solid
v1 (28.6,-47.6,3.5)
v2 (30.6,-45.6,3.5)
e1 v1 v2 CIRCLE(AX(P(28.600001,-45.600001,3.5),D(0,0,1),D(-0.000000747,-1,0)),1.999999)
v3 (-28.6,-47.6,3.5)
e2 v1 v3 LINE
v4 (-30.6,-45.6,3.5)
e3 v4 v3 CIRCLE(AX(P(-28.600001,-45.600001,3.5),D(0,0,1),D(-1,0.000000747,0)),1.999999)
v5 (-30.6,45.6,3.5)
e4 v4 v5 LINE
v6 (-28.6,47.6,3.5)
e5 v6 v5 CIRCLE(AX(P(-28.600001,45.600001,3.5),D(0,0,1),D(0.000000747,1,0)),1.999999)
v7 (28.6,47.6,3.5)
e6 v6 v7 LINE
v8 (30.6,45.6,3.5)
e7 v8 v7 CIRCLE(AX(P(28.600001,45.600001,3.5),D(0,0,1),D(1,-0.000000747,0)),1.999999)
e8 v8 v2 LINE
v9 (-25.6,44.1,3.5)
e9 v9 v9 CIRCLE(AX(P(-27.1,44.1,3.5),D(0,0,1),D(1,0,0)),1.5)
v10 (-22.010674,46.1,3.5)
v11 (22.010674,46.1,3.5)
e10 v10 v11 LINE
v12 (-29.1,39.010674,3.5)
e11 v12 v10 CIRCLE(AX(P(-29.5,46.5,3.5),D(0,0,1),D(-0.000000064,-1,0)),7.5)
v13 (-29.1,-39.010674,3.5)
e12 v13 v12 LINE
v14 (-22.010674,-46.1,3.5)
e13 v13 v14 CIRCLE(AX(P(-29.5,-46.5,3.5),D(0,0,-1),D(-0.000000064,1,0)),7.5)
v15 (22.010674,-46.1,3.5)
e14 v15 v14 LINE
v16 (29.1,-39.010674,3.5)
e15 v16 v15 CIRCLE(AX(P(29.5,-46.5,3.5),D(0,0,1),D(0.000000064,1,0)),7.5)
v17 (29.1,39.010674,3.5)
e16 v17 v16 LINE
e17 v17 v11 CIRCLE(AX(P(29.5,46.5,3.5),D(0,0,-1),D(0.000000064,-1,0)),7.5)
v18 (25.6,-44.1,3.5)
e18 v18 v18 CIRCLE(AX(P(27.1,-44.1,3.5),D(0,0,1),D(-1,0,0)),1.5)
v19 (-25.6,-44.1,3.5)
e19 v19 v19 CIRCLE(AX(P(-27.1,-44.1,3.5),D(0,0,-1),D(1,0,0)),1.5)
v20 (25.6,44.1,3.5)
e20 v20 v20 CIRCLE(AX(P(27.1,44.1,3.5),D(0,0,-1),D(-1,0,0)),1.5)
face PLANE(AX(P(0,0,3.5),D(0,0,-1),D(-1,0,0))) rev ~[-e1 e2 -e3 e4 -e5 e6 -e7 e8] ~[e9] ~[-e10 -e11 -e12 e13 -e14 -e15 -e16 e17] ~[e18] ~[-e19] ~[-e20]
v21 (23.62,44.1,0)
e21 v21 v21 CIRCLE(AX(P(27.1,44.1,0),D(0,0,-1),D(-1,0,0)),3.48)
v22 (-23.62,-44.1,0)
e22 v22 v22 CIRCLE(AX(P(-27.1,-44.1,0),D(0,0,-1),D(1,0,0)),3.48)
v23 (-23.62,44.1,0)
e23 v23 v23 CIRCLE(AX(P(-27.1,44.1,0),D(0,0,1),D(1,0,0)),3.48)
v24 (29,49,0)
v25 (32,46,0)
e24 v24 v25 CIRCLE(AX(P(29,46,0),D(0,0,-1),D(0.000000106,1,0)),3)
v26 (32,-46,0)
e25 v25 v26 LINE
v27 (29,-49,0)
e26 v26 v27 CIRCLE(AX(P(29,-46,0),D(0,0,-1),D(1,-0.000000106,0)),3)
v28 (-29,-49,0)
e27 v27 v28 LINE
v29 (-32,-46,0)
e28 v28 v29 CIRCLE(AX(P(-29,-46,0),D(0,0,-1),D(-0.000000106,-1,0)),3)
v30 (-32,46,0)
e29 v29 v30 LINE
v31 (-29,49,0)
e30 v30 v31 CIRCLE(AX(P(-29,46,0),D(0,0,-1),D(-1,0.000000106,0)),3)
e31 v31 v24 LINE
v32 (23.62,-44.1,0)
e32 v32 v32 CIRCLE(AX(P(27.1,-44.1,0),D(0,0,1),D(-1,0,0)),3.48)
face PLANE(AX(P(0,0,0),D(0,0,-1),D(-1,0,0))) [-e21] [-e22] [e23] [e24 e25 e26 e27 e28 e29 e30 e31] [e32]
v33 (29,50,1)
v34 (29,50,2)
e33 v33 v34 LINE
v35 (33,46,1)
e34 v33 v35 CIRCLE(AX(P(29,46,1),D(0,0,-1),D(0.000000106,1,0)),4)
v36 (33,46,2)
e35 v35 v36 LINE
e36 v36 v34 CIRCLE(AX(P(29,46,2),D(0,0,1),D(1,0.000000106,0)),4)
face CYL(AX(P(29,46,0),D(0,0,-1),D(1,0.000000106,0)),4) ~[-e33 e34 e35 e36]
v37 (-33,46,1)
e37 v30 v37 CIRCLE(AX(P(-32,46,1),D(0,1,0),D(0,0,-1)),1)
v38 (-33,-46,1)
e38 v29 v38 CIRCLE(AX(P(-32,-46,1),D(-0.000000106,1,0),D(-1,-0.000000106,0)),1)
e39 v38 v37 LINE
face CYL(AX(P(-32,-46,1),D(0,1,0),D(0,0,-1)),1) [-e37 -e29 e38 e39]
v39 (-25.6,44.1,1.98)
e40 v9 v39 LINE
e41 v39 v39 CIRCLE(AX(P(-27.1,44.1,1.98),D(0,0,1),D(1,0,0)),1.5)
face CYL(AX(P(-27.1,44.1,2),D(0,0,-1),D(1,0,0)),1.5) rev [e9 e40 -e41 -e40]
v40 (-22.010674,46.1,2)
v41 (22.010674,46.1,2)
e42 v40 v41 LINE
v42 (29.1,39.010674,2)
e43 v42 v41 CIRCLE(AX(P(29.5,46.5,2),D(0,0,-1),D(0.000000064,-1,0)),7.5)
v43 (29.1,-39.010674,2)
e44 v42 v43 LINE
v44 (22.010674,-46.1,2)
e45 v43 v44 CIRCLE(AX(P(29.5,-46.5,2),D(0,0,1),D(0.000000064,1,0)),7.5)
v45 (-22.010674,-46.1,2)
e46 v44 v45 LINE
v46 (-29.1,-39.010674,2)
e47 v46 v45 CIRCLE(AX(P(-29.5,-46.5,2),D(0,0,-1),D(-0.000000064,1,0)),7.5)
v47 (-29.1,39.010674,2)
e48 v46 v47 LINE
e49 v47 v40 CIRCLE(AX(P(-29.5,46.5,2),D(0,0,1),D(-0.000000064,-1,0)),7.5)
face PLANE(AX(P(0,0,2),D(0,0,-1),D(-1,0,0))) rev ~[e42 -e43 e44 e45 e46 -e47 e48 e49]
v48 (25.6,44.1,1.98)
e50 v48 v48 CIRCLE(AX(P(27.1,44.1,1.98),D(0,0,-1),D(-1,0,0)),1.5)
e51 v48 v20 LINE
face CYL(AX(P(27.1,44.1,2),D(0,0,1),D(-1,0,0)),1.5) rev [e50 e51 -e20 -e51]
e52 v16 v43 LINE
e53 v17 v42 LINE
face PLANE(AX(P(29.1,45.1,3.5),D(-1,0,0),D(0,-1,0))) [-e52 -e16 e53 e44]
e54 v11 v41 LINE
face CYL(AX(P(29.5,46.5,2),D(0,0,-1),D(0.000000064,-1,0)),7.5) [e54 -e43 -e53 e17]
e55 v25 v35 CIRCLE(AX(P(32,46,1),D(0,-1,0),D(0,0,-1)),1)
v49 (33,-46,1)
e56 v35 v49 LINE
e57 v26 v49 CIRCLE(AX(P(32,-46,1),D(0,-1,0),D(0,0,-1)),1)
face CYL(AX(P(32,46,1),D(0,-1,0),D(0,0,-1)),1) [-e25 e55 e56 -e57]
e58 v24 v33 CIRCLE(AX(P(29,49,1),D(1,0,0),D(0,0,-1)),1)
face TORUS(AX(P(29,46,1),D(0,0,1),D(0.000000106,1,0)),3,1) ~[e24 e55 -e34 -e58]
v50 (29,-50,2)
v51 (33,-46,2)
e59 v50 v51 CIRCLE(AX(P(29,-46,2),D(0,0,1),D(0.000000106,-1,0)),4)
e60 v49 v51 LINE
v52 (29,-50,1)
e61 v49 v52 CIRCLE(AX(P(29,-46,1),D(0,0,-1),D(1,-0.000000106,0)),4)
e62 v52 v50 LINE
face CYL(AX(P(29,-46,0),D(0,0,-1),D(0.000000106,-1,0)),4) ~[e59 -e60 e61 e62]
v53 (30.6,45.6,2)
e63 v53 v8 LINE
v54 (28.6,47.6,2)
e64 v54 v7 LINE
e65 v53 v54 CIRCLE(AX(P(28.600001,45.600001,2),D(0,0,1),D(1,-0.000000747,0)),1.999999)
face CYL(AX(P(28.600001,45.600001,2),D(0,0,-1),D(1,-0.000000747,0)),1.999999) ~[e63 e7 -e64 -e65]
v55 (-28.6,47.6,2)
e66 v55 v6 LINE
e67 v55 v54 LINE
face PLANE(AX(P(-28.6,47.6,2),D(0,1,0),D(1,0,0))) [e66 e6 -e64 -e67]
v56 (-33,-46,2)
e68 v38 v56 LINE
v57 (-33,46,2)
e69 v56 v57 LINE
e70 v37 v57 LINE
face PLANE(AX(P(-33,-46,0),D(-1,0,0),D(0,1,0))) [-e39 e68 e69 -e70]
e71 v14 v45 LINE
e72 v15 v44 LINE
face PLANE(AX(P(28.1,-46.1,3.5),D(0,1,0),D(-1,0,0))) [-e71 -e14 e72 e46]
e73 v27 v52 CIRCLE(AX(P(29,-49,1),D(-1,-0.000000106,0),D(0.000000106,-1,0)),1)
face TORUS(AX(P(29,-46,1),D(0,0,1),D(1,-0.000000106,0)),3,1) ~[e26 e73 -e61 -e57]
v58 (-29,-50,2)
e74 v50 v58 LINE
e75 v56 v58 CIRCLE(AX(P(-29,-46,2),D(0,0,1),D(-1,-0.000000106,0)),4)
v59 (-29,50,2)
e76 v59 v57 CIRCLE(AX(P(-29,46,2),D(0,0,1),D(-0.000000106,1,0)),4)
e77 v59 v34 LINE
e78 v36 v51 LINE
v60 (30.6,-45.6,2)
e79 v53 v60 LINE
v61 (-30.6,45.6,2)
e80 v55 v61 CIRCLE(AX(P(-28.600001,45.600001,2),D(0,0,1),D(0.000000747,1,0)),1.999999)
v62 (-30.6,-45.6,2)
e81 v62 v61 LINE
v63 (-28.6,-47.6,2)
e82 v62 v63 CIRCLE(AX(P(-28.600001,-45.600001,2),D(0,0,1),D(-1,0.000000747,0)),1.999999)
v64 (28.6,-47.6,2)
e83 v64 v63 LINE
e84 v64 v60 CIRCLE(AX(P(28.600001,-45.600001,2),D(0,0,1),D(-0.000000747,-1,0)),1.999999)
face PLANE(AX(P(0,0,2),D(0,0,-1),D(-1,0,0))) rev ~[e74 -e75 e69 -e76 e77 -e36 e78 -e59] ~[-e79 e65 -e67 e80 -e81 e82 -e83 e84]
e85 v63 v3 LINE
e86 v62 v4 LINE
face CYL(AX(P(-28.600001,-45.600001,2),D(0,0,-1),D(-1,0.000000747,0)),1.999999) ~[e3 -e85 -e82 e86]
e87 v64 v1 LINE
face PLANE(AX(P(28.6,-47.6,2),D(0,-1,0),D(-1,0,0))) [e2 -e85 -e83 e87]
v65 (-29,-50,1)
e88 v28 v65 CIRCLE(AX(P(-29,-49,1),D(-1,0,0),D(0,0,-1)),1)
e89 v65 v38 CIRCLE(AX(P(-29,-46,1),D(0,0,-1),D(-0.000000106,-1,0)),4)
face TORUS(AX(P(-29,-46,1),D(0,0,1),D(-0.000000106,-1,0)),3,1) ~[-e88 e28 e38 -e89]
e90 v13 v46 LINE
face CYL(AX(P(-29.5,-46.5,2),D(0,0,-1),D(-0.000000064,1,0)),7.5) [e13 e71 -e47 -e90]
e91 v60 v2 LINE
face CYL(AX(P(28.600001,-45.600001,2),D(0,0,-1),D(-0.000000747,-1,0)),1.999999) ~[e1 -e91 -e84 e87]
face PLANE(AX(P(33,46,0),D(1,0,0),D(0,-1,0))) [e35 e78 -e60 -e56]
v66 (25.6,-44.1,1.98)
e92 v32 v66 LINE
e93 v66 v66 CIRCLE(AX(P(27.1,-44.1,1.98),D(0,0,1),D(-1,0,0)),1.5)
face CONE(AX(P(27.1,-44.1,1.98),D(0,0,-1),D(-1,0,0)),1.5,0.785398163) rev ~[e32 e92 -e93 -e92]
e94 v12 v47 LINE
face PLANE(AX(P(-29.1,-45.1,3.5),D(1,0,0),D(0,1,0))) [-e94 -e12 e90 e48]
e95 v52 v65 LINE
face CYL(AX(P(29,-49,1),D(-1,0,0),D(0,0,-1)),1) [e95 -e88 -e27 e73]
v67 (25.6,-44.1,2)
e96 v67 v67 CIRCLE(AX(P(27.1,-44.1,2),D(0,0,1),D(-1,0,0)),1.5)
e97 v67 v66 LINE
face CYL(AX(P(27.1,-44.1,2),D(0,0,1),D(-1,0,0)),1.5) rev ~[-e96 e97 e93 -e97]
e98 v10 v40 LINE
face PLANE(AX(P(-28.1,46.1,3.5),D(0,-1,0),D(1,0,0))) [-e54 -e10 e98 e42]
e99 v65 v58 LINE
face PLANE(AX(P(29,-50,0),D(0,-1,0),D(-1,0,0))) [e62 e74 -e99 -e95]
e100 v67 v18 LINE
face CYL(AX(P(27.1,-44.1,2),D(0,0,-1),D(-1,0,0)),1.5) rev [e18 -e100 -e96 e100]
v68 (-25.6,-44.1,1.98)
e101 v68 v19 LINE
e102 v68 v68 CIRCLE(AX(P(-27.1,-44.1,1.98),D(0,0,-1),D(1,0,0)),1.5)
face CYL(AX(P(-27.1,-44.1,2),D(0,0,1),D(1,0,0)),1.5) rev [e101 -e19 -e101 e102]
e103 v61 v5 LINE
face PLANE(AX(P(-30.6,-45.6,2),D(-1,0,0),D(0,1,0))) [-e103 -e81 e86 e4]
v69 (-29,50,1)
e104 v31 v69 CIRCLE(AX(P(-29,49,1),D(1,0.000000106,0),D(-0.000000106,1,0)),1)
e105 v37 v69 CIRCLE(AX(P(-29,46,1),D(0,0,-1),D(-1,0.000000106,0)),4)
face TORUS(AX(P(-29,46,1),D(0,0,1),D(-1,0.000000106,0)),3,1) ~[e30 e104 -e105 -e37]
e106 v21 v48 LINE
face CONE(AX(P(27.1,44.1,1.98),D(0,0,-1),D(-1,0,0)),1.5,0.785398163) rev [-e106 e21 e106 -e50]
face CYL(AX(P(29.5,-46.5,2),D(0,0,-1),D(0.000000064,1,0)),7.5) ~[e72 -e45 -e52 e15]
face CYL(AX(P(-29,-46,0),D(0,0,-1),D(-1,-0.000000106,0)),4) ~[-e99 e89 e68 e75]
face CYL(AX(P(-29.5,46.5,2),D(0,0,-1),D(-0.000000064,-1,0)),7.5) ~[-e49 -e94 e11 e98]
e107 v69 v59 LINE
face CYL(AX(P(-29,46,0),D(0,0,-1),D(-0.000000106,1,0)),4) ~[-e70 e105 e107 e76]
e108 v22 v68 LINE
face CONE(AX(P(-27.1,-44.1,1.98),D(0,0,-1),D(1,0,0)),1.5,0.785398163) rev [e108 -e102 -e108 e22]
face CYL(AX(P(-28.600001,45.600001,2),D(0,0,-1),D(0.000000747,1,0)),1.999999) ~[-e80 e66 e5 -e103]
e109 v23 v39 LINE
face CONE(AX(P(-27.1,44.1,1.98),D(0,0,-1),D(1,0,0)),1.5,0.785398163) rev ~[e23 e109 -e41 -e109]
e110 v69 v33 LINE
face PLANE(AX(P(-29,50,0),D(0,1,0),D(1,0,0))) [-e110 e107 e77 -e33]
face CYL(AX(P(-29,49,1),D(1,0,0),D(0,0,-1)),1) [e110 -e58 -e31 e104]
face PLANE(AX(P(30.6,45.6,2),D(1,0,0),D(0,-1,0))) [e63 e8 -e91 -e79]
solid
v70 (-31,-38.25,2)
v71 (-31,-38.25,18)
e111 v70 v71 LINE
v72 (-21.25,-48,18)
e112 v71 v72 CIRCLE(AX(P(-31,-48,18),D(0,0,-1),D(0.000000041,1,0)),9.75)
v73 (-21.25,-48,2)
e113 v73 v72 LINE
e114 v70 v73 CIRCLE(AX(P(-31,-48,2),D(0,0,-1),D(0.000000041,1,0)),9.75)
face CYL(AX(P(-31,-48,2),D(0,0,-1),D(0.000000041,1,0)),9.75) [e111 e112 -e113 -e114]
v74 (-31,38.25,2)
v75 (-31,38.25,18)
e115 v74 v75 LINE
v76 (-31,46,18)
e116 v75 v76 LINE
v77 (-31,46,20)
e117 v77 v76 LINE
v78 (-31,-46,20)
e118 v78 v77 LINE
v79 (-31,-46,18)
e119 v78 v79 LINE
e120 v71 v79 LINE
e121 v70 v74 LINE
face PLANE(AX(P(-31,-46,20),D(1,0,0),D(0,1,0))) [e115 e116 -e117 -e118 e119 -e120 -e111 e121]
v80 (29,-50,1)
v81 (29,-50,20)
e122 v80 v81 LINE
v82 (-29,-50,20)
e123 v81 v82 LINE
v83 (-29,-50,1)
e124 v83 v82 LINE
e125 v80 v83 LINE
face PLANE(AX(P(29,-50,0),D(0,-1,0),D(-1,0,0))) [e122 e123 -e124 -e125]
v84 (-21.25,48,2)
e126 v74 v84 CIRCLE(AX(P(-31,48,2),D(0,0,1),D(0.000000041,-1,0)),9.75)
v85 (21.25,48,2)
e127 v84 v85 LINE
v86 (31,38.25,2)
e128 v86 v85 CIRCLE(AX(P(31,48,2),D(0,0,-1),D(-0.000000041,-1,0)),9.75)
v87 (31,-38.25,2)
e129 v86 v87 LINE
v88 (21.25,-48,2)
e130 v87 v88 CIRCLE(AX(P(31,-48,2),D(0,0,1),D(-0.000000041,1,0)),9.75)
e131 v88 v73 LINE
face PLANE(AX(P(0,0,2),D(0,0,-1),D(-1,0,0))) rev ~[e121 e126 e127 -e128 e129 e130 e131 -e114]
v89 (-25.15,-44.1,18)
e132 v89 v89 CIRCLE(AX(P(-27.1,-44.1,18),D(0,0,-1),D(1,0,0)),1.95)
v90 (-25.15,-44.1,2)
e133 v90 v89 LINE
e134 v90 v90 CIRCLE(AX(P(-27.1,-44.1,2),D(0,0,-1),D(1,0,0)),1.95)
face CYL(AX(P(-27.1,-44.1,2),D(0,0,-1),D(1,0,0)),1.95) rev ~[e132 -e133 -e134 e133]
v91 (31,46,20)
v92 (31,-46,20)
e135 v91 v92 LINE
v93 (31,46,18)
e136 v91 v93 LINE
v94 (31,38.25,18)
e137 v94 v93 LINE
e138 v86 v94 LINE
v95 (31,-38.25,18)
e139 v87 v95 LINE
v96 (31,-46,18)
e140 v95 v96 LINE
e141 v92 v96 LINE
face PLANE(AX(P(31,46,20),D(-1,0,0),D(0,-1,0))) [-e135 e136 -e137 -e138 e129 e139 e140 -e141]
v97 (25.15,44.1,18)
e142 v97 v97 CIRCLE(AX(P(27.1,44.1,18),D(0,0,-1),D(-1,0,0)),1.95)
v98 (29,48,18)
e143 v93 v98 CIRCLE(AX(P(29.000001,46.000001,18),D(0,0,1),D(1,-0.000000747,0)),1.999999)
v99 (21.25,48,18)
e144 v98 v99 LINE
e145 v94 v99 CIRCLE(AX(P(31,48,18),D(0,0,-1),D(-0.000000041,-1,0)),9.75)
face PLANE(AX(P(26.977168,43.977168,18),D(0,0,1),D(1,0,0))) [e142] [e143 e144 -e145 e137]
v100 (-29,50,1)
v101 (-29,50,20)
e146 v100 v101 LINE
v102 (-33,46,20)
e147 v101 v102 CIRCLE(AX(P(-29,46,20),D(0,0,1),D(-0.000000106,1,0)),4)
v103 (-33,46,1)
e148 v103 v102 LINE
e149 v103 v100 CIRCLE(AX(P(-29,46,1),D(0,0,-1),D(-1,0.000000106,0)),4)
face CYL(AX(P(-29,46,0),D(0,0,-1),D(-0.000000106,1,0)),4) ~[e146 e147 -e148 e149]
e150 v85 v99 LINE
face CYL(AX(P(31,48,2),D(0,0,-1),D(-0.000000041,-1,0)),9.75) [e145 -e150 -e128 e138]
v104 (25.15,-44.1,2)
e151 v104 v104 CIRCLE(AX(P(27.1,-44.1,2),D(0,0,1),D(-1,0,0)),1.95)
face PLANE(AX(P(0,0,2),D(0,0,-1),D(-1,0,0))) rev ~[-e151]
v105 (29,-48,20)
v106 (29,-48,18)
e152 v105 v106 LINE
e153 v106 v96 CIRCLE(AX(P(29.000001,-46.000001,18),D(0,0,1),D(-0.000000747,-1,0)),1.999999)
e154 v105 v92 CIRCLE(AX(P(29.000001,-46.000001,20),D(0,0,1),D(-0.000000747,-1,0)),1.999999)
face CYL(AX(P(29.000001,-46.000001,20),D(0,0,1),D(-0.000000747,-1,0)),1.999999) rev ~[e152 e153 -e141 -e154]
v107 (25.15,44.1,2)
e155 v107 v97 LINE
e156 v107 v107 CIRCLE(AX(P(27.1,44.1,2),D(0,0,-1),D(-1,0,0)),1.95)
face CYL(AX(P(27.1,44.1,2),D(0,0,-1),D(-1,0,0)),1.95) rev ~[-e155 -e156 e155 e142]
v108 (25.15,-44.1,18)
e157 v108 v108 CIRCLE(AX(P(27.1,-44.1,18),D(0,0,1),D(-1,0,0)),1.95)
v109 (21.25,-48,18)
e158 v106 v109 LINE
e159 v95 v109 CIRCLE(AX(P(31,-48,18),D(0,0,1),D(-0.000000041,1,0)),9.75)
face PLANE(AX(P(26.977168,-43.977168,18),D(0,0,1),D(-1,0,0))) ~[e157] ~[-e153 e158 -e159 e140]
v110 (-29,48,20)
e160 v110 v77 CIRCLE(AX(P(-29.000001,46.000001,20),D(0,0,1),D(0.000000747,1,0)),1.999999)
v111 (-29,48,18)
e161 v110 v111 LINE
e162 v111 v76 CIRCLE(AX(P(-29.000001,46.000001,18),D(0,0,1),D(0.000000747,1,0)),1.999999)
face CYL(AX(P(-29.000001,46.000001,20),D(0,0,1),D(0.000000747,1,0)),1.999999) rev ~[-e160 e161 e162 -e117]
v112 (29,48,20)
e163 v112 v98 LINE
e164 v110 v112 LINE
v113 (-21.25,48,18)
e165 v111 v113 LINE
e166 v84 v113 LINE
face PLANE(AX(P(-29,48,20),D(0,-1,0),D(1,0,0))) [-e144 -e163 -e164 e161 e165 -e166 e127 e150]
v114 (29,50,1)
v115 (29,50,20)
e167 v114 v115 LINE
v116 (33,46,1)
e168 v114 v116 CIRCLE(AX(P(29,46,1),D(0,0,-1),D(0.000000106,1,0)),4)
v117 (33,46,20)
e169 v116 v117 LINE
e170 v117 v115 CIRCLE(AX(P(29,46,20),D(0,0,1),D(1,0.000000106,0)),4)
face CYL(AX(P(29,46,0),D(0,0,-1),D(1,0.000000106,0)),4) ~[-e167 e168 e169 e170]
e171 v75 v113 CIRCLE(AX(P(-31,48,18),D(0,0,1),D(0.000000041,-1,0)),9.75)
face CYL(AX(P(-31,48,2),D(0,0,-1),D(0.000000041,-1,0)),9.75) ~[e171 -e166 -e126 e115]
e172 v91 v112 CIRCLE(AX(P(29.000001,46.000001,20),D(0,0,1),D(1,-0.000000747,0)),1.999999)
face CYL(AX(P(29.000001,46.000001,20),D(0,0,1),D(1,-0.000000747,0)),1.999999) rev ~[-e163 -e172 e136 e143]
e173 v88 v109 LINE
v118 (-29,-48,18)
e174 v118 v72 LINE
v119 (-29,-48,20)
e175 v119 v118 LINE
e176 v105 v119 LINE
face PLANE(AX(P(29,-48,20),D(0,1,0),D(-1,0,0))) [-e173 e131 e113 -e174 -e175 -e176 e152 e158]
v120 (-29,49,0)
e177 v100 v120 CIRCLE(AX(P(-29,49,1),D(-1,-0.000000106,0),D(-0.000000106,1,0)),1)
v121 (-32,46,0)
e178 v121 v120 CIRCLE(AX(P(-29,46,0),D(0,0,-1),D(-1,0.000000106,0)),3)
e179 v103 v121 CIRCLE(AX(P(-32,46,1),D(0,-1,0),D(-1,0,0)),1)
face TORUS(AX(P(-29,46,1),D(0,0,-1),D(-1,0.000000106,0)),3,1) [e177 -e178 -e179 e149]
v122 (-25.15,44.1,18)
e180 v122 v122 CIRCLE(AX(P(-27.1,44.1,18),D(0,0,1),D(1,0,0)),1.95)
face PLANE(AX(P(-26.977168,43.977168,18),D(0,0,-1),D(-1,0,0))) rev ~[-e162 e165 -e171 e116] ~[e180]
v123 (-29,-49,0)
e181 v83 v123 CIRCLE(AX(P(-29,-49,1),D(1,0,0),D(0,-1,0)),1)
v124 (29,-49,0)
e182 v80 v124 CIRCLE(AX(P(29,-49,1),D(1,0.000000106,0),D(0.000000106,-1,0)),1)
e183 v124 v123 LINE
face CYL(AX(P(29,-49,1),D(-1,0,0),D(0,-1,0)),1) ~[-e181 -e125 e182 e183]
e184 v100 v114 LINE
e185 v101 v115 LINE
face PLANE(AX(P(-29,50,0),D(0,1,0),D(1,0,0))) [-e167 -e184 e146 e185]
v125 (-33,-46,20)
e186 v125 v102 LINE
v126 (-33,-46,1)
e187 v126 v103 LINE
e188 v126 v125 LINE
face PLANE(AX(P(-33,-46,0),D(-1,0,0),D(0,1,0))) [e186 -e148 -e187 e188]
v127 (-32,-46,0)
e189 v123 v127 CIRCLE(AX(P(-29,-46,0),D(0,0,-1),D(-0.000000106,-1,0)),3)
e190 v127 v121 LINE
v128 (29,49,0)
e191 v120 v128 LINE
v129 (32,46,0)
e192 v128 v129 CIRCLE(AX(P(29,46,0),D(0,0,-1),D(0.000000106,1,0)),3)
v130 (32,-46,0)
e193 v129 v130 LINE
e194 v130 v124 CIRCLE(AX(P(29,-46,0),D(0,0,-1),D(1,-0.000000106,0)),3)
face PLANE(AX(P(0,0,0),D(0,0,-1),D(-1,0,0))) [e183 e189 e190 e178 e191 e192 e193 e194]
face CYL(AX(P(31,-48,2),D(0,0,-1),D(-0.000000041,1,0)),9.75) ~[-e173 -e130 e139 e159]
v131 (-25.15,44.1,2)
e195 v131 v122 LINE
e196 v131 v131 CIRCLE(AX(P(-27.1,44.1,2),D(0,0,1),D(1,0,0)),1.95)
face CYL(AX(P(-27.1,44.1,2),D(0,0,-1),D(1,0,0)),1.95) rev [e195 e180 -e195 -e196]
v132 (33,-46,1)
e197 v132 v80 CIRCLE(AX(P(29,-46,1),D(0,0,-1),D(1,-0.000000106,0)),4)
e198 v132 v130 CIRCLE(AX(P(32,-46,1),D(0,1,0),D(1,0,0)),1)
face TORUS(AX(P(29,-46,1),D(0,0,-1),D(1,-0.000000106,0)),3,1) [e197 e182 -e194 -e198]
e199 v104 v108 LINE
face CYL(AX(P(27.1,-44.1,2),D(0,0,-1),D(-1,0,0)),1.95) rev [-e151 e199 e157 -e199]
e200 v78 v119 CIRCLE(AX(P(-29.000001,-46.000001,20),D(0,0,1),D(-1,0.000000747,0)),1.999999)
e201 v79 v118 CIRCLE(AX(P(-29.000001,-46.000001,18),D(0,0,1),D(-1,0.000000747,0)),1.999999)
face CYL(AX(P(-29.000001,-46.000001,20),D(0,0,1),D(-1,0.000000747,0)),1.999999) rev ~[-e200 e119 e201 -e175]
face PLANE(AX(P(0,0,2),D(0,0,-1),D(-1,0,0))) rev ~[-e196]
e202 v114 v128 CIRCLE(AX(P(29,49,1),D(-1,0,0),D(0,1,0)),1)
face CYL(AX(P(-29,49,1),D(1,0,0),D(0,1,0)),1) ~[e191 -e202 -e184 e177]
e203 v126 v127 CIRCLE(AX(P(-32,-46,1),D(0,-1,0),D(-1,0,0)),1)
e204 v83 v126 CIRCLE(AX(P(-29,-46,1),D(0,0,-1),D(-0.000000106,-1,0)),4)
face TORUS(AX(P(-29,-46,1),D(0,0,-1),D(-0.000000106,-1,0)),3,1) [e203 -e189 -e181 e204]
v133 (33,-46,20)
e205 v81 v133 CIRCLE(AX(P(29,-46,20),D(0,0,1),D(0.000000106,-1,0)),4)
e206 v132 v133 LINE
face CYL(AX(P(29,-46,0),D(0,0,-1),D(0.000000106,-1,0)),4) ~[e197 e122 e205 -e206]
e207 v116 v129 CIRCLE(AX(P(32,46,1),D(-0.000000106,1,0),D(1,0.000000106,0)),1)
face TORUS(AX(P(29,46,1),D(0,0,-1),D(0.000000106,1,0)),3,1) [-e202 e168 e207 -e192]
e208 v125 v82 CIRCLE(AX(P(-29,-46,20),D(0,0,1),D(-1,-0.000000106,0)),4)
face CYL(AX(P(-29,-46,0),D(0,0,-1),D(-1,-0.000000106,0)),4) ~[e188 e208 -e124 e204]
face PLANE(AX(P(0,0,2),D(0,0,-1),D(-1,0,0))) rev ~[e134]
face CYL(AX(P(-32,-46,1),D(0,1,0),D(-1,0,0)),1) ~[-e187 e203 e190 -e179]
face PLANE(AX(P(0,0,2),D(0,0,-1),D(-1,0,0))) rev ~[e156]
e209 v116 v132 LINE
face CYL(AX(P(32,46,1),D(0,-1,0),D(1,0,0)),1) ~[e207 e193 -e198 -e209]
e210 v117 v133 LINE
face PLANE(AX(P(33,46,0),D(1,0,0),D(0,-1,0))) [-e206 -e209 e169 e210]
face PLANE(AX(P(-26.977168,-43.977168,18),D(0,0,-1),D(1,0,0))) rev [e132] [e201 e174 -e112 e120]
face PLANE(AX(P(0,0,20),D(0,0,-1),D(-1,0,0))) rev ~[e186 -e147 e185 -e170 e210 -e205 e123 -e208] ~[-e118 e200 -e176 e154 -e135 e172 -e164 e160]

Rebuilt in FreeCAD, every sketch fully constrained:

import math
import FreeCAD as App
import Part
import Sketcher
from FreeCAD import Vector


def edges_at(feature, points):
    """Names of the edges that pass closest to the given points."""
    edges = feature.Shape.Edges
    near = lambda p: min(range(len(edges)), key=lambda i: edges[i].distToShape(Part.Vertex(*p))[0])
    return sorted({f"Edge{near(p) + 1}" for p in points})

doc = App.newDocument("Part")
body = doc.addObject("PartDesign::Body", "Body")

# Sketch on XY plane
sketch1 = body.newObject("Sketcher::SketchObject", "Sketch")
sketch1.AttachmentSupport = (doc.getObject("XY_Plane"), [""])
sketch1.MapMode = "FlatFace"
sketch1.addGeometry([
    Part.LineSegment(Vector(29, 50, 0), Vector(-29, 50, 0)),  # 0
    Part.ArcOfCircle(Part.Circle(Vector(-29, 46, 0), Vector(0, 0, 1), 4), math.radians(90), math.radians(180)),  # 1
    Part.LineSegment(Vector(-33, 46, 0), Vector(-33, -46, 0)),  # 2
    Part.ArcOfCircle(Part.Circle(Vector(-29, -46, 0), Vector(0, 0, 1), 4), math.radians(-180), math.radians(-90)),  # 3
    Part.LineSegment(Vector(-29, -50, 0), Vector(29, -50, 0)),  # 4
    Part.ArcOfCircle(Part.Circle(Vector(29, -46, 0), Vector(0, 0, 1), 4), math.radians(-90), math.radians(0)),  # 5
    Part.LineSegment(Vector(33, -46, 0), Vector(33, 46, 0)),  # 6
    Part.ArcOfCircle(Part.Circle(Vector(29, 46, 0), Vector(0, 0, 1), 4), math.radians(0), math.radians(90)),  # 7
], False)
sketch1.addConstraint([
    Sketcher.Constraint("Tangent", 0, 2, 1, 1),
    Sketcher.Constraint("Tangent", 1, 2, 2, 1),
    Sketcher.Constraint("Tangent", 2, 2, 3, 1),
    Sketcher.Constraint("Tangent", 3, 2, 4, 1),
    Sketcher.Constraint("Tangent", 4, 2, 5, 1),
    Sketcher.Constraint("Tangent", 5, 2, 6, 1),
    Sketcher.Constraint("Tangent", 6, 2, 7, 1),
    Sketcher.Constraint("Tangent", 7, 2, 0, 1),
    Sketcher.Constraint("Horizontal", 0),
    Sketcher.Constraint("Vertical", 2),
    Sketcher.Constraint("Horizontal", 4),
    Sketcher.Constraint("Vertical", 6),
    Sketcher.Constraint("Equal", 1, 3),
    Sketcher.Constraint("Equal", 3, 5),
    Sketcher.Constraint("Equal", 5, 7),
    Sketcher.Constraint("Symmetric", 1, 3, 5, 3, -1, 1),
    Sketcher.Constraint("Radius", 1, 4.0),
    Sketcher.Constraint("DistanceX", 0, 2, 0, 1, 58.0),
    Sketcher.Constraint("DistanceY", 2, 2, 2, 1, 92.0),
])
pad1 = body.newObject("PartDesign::Pad", "Pad")
pad1.Profile = sketch1
pad1.Length = 20

# Sketch on XY plane
sketch2 = body.newObject("Sketcher::SketchObject", "Sketch001")
sketch2.AttachmentSupport = (doc.getObject("XY_Plane"), [""])
sketch2.MapMode = "FlatFace"
sketch2.AttachmentOffset = App.Placement(Vector(0, 0, 20), App.Rotation())
sketch2.addGeometry([
    Part.LineSegment(Vector(29, 48, 0), Vector(-29, 48, 0)),  # 0
    Part.ArcOfCircle(Part.Circle(Vector(-29, 46, 0), Vector(0, 0, 1), 2), math.radians(90), math.radians(180)),  # 1
    Part.LineSegment(Vector(-31, 46, 0), Vector(-31, -46, 0)),  # 2
    Part.ArcOfCircle(Part.Circle(Vector(-29, -46, 0), Vector(0, 0, 1), 2), math.radians(180), math.radians(270)),  # 3
    Part.LineSegment(Vector(-29, -48, 0), Vector(29, -48, 0)),  # 4
    Part.ArcOfCircle(Part.Circle(Vector(29, -46, 0), Vector(0, 0, 1), 2), math.radians(-90), math.radians(0)),  # 5
    Part.LineSegment(Vector(31, -46, 0), Vector(31, 46, 0)),  # 6
    Part.ArcOfCircle(Part.Circle(Vector(29, 46, 0), Vector(0, 0, 1), 2), math.radians(0), math.radians(90)),  # 7
], False)
sketch2.addConstraint([
    Sketcher.Constraint("Tangent", 0, 2, 1, 1),
    Sketcher.Constraint("Tangent", 1, 2, 2, 1),
    Sketcher.Constraint("Tangent", 2, 2, 3, 1),
    Sketcher.Constraint("Tangent", 3, 2, 4, 1),
    Sketcher.Constraint("Tangent", 4, 2, 5, 1),
    Sketcher.Constraint("Tangent", 5, 2, 6, 1),
    Sketcher.Constraint("Tangent", 6, 2, 7, 1),
    Sketcher.Constraint("Tangent", 7, 2, 0, 1),
    Sketcher.Constraint("Horizontal", 0),
    Sketcher.Constraint("Vertical", 2),
    Sketcher.Constraint("Horizontal", 4),
    Sketcher.Constraint("Vertical", 6),
    Sketcher.Constraint("Equal", 1, 3),
    Sketcher.Constraint("Equal", 3, 5),
    Sketcher.Constraint("Equal", 5, 7),
    Sketcher.Constraint("Symmetric", 1, 3, 5, 3, -1, 1),
    Sketcher.Constraint("Radius", 1, 1.999999),
    Sketcher.Constraint("DistanceX", 0, 2, 0, 1, 58.0),
    Sketcher.Constraint("DistanceY", 2, 2, 2, 1, 92.0),
])
pocket1 = body.newObject("PartDesign::Pocket", "Pocket")
pocket1.Profile = sketch2
pocket1.Length = 18

# Sketch on XY plane
sketch3 = body.newObject("Sketcher::SketchObject", "Sketch002")
sketch3.AttachmentSupport = (doc.getObject("XY_Plane"), [""])
sketch3.MapMode = "FlatFace"
sketch3.AttachmentOffset = App.Placement(Vector(0, 0, 2), App.Rotation())
sketch3.addGeometry([
    Part.LineSegment(Vector(-31, 48, 0), Vector(-31, 38.2, 0)),
    Part.ArcOfCircle(Part.Circle(Vector(-31, 48, 0), Vector(0, 0, 1), 9.8), math.radians(-90), math.radians(0)),
    Part.LineSegment(Vector(-21.2, 48, 0), Vector(-31, 48, 0)),
    Part.Circle(Vector(-27.1, 44.1, 0), Vector(0, 0, 1), 1.9),
], False)
sketch3.addConstraint([
    Sketcher.Constraint("Coincident", 0, 2, 1, 1),
    Sketcher.Constraint("Coincident", 1, 2, 2, 1),
    Sketcher.Constraint("Coincident", 2, 2, 0, 1),
    Sketcher.Constraint("Vertical", 0),
    Sketcher.Constraint("Horizontal", 2),
    Sketcher.Constraint("Coincident", 2, 2, 1, 3),
    Sketcher.Constraint("Diameter", 3, 3.9),
    Sketcher.Constraint("Radius", 1, 9.75),
    Sketcher.Constraint("DistanceX", 1, 3, -1, 1, 31.0),
    Sketcher.Constraint("DistanceY", -1, 1, 1, 3, 48.0),
    Sketcher.Constraint("DistanceX", 3, 3, -1, 1, 27.1),
    Sketcher.Constraint("DistanceY", -1, 1, 3, 3, 44.1),
])
pad2 = body.newObject("PartDesign::Pad", "Pad001")
pad2.Profile = sketch3
pad2.Length = 16

# Sketch on XY plane
sketch4 = body.newObject("Sketcher::SketchObject", "Sketch003")
sketch4.AttachmentSupport = (doc.getObject("XY_Plane"), [""])
sketch4.MapMode = "FlatFace"
sketch4.AttachmentOffset = App.Placement(Vector(0, 0, 2), App.Rotation())
sketch4.addGeometry([
    Part.LineSegment(Vector(31, 48, 0), Vector(31, 38.2, 0)),
    Part.ArcOfCircle(Part.Circle(Vector(31, 48, 0), Vector(0, 0, 1), 9.8), math.radians(-180), math.radians(-90)),
    Part.LineSegment(Vector(21.2, 48, 0), Vector(31, 48, 0)),
    Part.Circle(Vector(27.1, 44.1, 0), Vector(0, 0, 1), 1.9),
], False)
sketch4.addConstraint([
    Sketcher.Constraint("Coincident", 0, 2, 1, 2),
    Sketcher.Constraint("Coincident", 1, 1, 2, 1),
    Sketcher.Constraint("Coincident", 2, 2, 0, 1),
    Sketcher.Constraint("Vertical", 0),
    Sketcher.Constraint("Horizontal", 2),
    Sketcher.Constraint("Coincident", 2, 2, 1, 3),
    Sketcher.Constraint("Diameter", 3, 3.9),
    Sketcher.Constraint("Radius", 1, 9.75),
    Sketcher.Constraint("DistanceX", -1, 1, 1, 3, 31.0),
    Sketcher.Constraint("DistanceY", -1, 1, 1, 3, 48.0),
    Sketcher.Constraint("DistanceX", -1, 1, 3, 3, 27.1),
    Sketcher.Constraint("DistanceY", -1, 1, 3, 3, 44.1),
])
pad3 = body.newObject("PartDesign::Pad", "Pad002")
pad3.Profile = sketch4
pad3.Length = 16
doc.recompute()

mirrored = body.newObject("PartDesign::Mirrored", "Mirrored")
mirrored.Originals = [pad2, pad3]
mirrored.MirrorPlane = (doc.getObject("XZ_Plane"), [""])
body.Tip = mirrored
doc.recompute()

fillet = body.newObject("PartDesign::Fillet", "Fillet")
fillet.Base = (mirrored, edges_at(mirrored, [
    (-33, 0, 0),
    (-31.828, 48.828, 0),
    (0, 50, 0),
    (31.828, 48.828, 0),
    (33, 0, 0),
    (31.828, -48.828, 0),
    (0, -50, 0),
    (-31.828, -48.828, 0),
]))
fillet.Radius = 1
body2 = doc.addObject("PartDesign::Body", "Body001")

# Sketch on XY plane
sketch5 = body2.newObject("Sketcher::SketchObject", "Sketch004")
sketch5.AttachmentSupport = (doc.getObject("XY_Plane001"), [""])
sketch5.MapMode = "FlatFace"
sketch5.addGeometry([
    Part.LineSegment(Vector(29, 50, 0), Vector(-29, 50, 0)),  # 0
    Part.ArcOfCircle(Part.Circle(Vector(-29, 46, 0), Vector(0, 0, 1), 4), math.radians(90), math.radians(180)),  # 1
    Part.LineSegment(Vector(-33, 46, 0), Vector(-33, -46, 0)),  # 2
    Part.ArcOfCircle(Part.Circle(Vector(-29, -46, 0), Vector(0, 0, 1), 4), math.radians(-180), math.radians(-90)),  # 3
    Part.LineSegment(Vector(-29, -50, 0), Vector(29, -50, 0)),  # 4
    Part.ArcOfCircle(Part.Circle(Vector(29, -46, 0), Vector(0, 0, 1), 4), math.radians(-90), math.radians(0)),  # 5
    Part.LineSegment(Vector(33, -46, 0), Vector(33, 46, 0)),  # 6
    Part.ArcOfCircle(Part.Circle(Vector(29, 46, 0), Vector(0, 0, 1), 4), math.radians(0), math.radians(90)),  # 7
], False)
sketch5.addConstraint([
    Sketcher.Constraint("Tangent", 0, 2, 1, 1),
    Sketcher.Constraint("Tangent", 1, 2, 2, 1),
    Sketcher.Constraint("Tangent", 2, 2, 3, 1),
    Sketcher.Constraint("Tangent", 3, 2, 4, 1),
    Sketcher.Constraint("Tangent", 4, 2, 5, 1),
    Sketcher.Constraint("Tangent", 5, 2, 6, 1),
    Sketcher.Constraint("Tangent", 6, 2, 7, 1),
    Sketcher.Constraint("Tangent", 7, 2, 0, 1),
    Sketcher.Constraint("Horizontal", 0),
    Sketcher.Constraint("Vertical", 2),
    Sketcher.Constraint("Horizontal", 4),
    Sketcher.Constraint("Vertical", 6),
    Sketcher.Constraint("Equal", 1, 3),
    Sketcher.Constraint("Equal", 3, 5),
    Sketcher.Constraint("Equal", 5, 7),
    Sketcher.Constraint("Symmetric", 1, 3, 5, 3, -1, 1),
    Sketcher.Constraint("Radius", 1, 4.0),
    Sketcher.Constraint("DistanceX", 0, 2, 0, 1, 58.0),
    Sketcher.Constraint("DistanceY", 2, 2, 2, 1, 92.0),
])
pad4 = body2.newObject("PartDesign::Pad", "Pad003")
pad4.Profile = sketch5
pad4.Length = 2

# Sketch on XY plane
sketch6 = body2.newObject("Sketcher::SketchObject", "Sketch005")
sketch6.AttachmentSupport = (doc.getObject("XY_Plane001"), [""])
sketch6.MapMode = "FlatFace"
sketch6.AttachmentOffset = App.Placement(Vector(0, 0, 2), App.Rotation())
sketch6.addGeometry([
    Part.LineSegment(Vector(28.6, 47.6, 0), Vector(-28.6, 47.6, 0)),  # 0
    Part.ArcOfCircle(Part.Circle(Vector(-28.6, 45.6, 0), Vector(0, 0, 1), 2), math.radians(90), math.radians(180)),  # 1
    Part.LineSegment(Vector(-30.6, 45.6, 0), Vector(-30.6, -45.6, 0)),  # 2
    Part.ArcOfCircle(Part.Circle(Vector(-28.6, -45.6, 0), Vector(0, 0, 1), 2), math.radians(180), math.radians(270)),  # 3
    Part.LineSegment(Vector(-28.6, -47.6, 0), Vector(28.6, -47.6, 0)),  # 4
    Part.ArcOfCircle(Part.Circle(Vector(28.6, -45.6, 0), Vector(0, 0, 1), 2), math.radians(-90), math.radians(0)),  # 5
    Part.LineSegment(Vector(30.6, -45.6, 0), Vector(30.6, 45.6, 0)),  # 6
    Part.ArcOfCircle(Part.Circle(Vector(28.6, 45.6, 0), Vector(0, 0, 1), 2), math.radians(0), math.radians(90)),  # 7
], False)
sketch6.addConstraint([
    Sketcher.Constraint("Tangent", 0, 2, 1, 1),
    Sketcher.Constraint("Tangent", 1, 2, 2, 1),
    Sketcher.Constraint("Tangent", 2, 2, 3, 1),
    Sketcher.Constraint("Tangent", 3, 2, 4, 1),
    Sketcher.Constraint("Tangent", 4, 2, 5, 1),
    Sketcher.Constraint("Tangent", 5, 2, 6, 1),
    Sketcher.Constraint("Tangent", 6, 2, 7, 1),
    Sketcher.Constraint("Tangent", 7, 2, 0, 1),
    Sketcher.Constraint("Horizontal", 0),
    Sketcher.Constraint("Vertical", 2),
    Sketcher.Constraint("Horizontal", 4),
    Sketcher.Constraint("Vertical", 6),
    Sketcher.Constraint("Equal", 1, 3),
    Sketcher.Constraint("Equal", 3, 5),
    Sketcher.Constraint("Equal", 5, 7),
    Sketcher.Constraint("Symmetric", 1, 3, 5, 3, -1, 1),
    Sketcher.Constraint("Radius", 1, 1.999999),
    Sketcher.Constraint("DistanceX", 0, 2, 0, 1, 57.2),
    Sketcher.Constraint("DistanceY", 2, 2, 2, 1, 91.2),
])
pad5 = body2.newObject("PartDesign::Pad", "Pad004")
pad5.Profile = sketch6
pad5.Length = 1.5

# Sketch on XY plane
sketch7 = body2.newObject("Sketcher::SketchObject", "Sketch006")
sketch7.AttachmentSupport = (doc.getObject("XY_Plane001"), [""])
sketch7.MapMode = "FlatFace"
sketch7.AttachmentOffset = App.Placement(Vector(0, 0, 3.5), App.Rotation())
sketch7.addGeometry([
    Part.LineSegment(Vector(28.1, 46.1, 0), Vector(-28.1, 46.1, 0)),  # 0
    Part.ArcOfCircle(Part.Circle(Vector(-28.1, 45.1, 0), Vector(0, 0, 1), 1), math.radians(90), math.radians(180)),  # 1
    Part.LineSegment(Vector(-29.1, 45.1, 0), Vector(-29.1, -45.1, 0)),  # 2
    Part.ArcOfCircle(Part.Circle(Vector(-28.1, -45.1, 0), Vector(0, 0, 1), 1), math.radians(180), math.radians(270)),  # 3
    Part.LineSegment(Vector(-28.1, -46.1, 0), Vector(28.1, -46.1, 0)),  # 4
    Part.ArcOfCircle(Part.Circle(Vector(28.1, -45.1, 0), Vector(0, 0, 1), 1), math.radians(-90), math.radians(0)),  # 5
    Part.LineSegment(Vector(29.1, -45.1, 0), Vector(29.1, 45.1, 0)),  # 6
    Part.ArcOfCircle(Part.Circle(Vector(28.1, 45.1, 0), Vector(0, 0, 1), 1), math.radians(0), math.radians(90)),  # 7
], False)
sketch7.addConstraint([
    Sketcher.Constraint("Tangent", 0, 2, 1, 1),
    Sketcher.Constraint("Tangent", 1, 2, 2, 1),
    Sketcher.Constraint("Tangent", 2, 2, 3, 1),
    Sketcher.Constraint("Tangent", 3, 2, 4, 1),
    Sketcher.Constraint("Tangent", 4, 2, 5, 1),
    Sketcher.Constraint("Tangent", 5, 2, 6, 1),
    Sketcher.Constraint("Tangent", 6, 2, 7, 1),
    Sketcher.Constraint("Tangent", 7, 2, 0, 1),
    Sketcher.Constraint("Horizontal", 0),
    Sketcher.Constraint("Vertical", 2),
    Sketcher.Constraint("Horizontal", 4),
    Sketcher.Constraint("Vertical", 6),
    Sketcher.Constraint("Equal", 1, 3),
    Sketcher.Constraint("Equal", 3, 5),
    Sketcher.Constraint("Equal", 5, 7),
    Sketcher.Constraint("Symmetric", 1, 3, 5, 3, -1, 1),
    Sketcher.Constraint("Radius", 1, 0.999999),
    Sketcher.Constraint("DistanceX", 0, 2, 0, 1, 56.2),
    Sketcher.Constraint("DistanceY", 2, 2, 2, 1, 90.2),
])
pocket2 = body2.newObject("PartDesign::Pocket", "Pocket001")
pocket2.Profile = sketch7
pocket2.Length = 1.5

# Sketch on XY plane
sketch8 = body2.newObject("Sketcher::SketchObject", "Sketch007")
sketch8.AttachmentSupport = (doc.getObject("XY_Plane001"), [""])
sketch8.MapMode = "FlatFace"
sketch8.AttachmentOffset = App.Placement(Vector(0, 0, 2), App.Rotation())
sketch8.addGeometry([
    Part.LineSegment(Vector(-29.5, 46.5, 0), Vector(-29.5, 39, 0)),
    Part.ArcOfCircle(Part.Circle(Vector(-29.5, 46.5, 0), Vector(0, 0, 1), 7.5), math.radians(-90), math.radians(0)),
    Part.LineSegment(Vector(-22, 46.5, 0), Vector(-29.5, 46.5, 0)),
    Part.Circle(Vector(-27.1, 44.1, 0), Vector(0, 0, 1), 1.5),
], False)
sketch8.addConstraint([
    Sketcher.Constraint("Coincident", 0, 2, 1, 1),
    Sketcher.Constraint("Coincident", 1, 2, 2, 1),
    Sketcher.Constraint("Coincident", 2, 2, 0, 1),
    Sketcher.Constraint("Vertical", 0),
    Sketcher.Constraint("Horizontal", 2),
    Sketcher.Constraint("Coincident", 2, 2, 1, 3),
    Sketcher.Constraint("Diameter", 3, 3.0),
    Sketcher.Constraint("Radius", 1, 7.5),
    Sketcher.Constraint("DistanceY", -1, 1, 0, 2, 39.0),
    Sketcher.Constraint("DistanceX", 1, 2, -1, 1, 22.0),
    Sketcher.Constraint("DistanceX", 3, 3, -1, 1, 27.1),
    Sketcher.Constraint("DistanceY", -1, 1, 3, 3, 44.1),
])
pad6 = body2.newObject("PartDesign::Pad", "Pad005")
pad6.Profile = sketch8
pad6.Length = 1.5

# Sketch on XY plane
sketch9 = body2.newObject("Sketcher::SketchObject", "Sketch008")
sketch9.AttachmentSupport = (doc.getObject("XY_Plane001"), [""])
sketch9.MapMode = "FlatFace"
sketch9.AttachmentOffset = App.Placement(Vector(0, 0, 2), App.Rotation())
sketch9.addGeometry([
    Part.LineSegment(Vector(29.5, 46.5, 0), Vector(29.5, 39, 0)),
    Part.ArcOfCircle(Part.Circle(Vector(29.5, 46.5, 0), Vector(0, 0, 1), 7.5), math.radians(180), math.radians(270)),
    Part.LineSegment(Vector(22, 46.5, 0), Vector(29.5, 46.5, 0)),
    Part.Circle(Vector(27.1, 44.1, 0), Vector(0, 0, 1), 1.5),
], False)
sketch9.addConstraint([
    Sketcher.Constraint("Coincident", 0, 2, 1, 2),
    Sketcher.Constraint("Coincident", 1, 1, 2, 1),
    Sketcher.Constraint("Coincident", 2, 2, 0, 1),
    Sketcher.Constraint("Vertical", 0),
    Sketcher.Constraint("Horizontal", 2),
    Sketcher.Constraint("Coincident", 2, 2, 1, 3),
    Sketcher.Constraint("Diameter", 3, 3.0),
    Sketcher.Constraint("Radius", 1, 7.5),
    Sketcher.Constraint("DistanceY", -1, 1, 0, 2, 39.0),
    Sketcher.Constraint("DistanceX", -1, 1, 1, 1, 22.0),
    Sketcher.Constraint("DistanceX", -1, 1, 3, 3, 27.1),
    Sketcher.Constraint("DistanceY", -1, 1, 3, 3, 44.1),
])
pad7 = body2.newObject("PartDesign::Pad", "Pad006")
pad7.Profile = sketch9
pad7.Length = 1.5
doc.recompute()

mirrored2 = body2.newObject("PartDesign::Mirrored", "Mirrored001")
mirrored2.Originals = [pad6, pad7]
mirrored2.MirrorPlane = (doc.getObject("XZ_Plane001"), [""])
body2.Tip = mirrored2

# Sketch on XY plane
sketch10 = body2.newObject("Sketcher::SketchObject", "Sketch009")
sketch10.AttachmentSupport = (doc.getObject("XY_Plane001"), [""])
sketch10.MapMode = "FlatFace"
sketch10.AttachmentOffset = App.Placement(Vector(0, 0, 2), App.Rotation())
sketch10.addGeometry(Part.Circle(Vector(-27.1, 44.1, 0), Vector(0, 0, 1), 1.5), False)
sketch10.addConstraint([
    Sketcher.Constraint("Diameter", 0, 3.0),
    Sketcher.Constraint("DistanceX", 0, 3, -1, 1, 27.1),
    Sketcher.Constraint("DistanceY", -1, 1, 0, 3, 44.1),
])
pocket3 = body2.newObject("PartDesign::Pocket", "Pocket002")
pocket3.Profile = sketch10
pocket3.Length = 2

# Sketch on XY plane
sketch11 = body2.newObject("Sketcher::SketchObject", "Sketch010")
sketch11.AttachmentSupport = (doc.getObject("XY_Plane001"), [""])
sketch11.MapMode = "FlatFace"
sketch11.AttachmentOffset = App.Placement(Vector(0, 0, 2), App.Rotation())
sketch11.addGeometry(Part.Circle(Vector(27.1, 44.1, 0), Vector(0, 0, 1), 1.5), False)
sketch11.addConstraint([
    Sketcher.Constraint("Diameter", 0, 3.0),
    Sketcher.Constraint("DistanceX", -1, 1, 0, 3, 27.1),
    Sketcher.Constraint("DistanceY", -1, 1, 0, 3, 44.1),
])
pocket4 = body2.newObject("PartDesign::Pocket", "Pocket003")
pocket4.Profile = sketch11
pocket4.Length = 2
doc.recompute()

mirrored3 = body2.newObject("PartDesign::Mirrored", "Mirrored002")
mirrored3.Originals = [pocket3, pocket4]
mirrored3.MirrorPlane = (doc.getObject("XZ_Plane001"), [""])
body2.Tip = mirrored3
doc.recompute()

fillet2 = body2.newObject("PartDesign::Fillet", "Fillet001")
fillet2.Base = (mirrored3, edges_at(mirrored3, [
    (33, 0, 0),
    (31.828, 48.828, 0),
    (0, 50, 0),
    (-31.828, 48.828, 0),
    (-33, 0, 0),
    (-31.828, -48.828, 0),
    (0, -50, 0),
    (31.828, -48.828, 0),
]))
fillet2.Radius = 1
doc.recompute()

chamfer = body2.newObject("PartDesign::Chamfer", "Chamfer")
chamfer.Base = (fillet2, edges_at(fillet2, [
    (28.6, 44.1, 0),
    (-28.6, 44.1, 0),
    (-28.6, -44.1, 0),
    (28.6, -44.1, 0),
]))
chamfer.Size = 1.98

doc.recompute()
